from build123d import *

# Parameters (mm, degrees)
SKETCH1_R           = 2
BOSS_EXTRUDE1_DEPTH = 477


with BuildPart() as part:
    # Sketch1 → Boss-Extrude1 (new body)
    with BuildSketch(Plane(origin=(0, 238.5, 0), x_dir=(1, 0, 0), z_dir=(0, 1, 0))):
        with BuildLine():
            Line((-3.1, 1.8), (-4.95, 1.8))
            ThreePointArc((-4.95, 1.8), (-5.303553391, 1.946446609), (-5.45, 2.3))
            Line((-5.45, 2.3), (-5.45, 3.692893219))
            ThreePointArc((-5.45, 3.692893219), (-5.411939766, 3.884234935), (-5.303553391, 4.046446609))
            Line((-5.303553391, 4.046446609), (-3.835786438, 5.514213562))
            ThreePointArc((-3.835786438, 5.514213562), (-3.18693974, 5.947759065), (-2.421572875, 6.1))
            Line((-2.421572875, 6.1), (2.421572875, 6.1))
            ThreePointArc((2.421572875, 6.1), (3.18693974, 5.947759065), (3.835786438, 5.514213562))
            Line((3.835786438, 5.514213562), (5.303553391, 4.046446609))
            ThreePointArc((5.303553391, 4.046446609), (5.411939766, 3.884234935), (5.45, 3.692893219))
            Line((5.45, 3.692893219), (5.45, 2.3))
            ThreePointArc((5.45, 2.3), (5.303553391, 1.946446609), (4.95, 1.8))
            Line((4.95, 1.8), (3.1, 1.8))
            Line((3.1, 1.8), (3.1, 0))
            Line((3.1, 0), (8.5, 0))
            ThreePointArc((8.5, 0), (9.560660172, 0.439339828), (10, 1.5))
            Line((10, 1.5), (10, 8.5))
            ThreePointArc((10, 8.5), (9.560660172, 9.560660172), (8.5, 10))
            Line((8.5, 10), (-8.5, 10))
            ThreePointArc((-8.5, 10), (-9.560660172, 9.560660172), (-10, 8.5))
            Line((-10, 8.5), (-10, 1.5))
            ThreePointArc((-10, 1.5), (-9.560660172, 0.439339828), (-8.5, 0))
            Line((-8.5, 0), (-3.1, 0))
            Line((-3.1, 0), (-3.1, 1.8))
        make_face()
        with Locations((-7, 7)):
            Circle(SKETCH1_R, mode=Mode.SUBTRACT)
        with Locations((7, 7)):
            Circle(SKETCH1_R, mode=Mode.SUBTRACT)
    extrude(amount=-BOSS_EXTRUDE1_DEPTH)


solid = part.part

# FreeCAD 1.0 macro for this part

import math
import FreeCAD as App
import Part
import Sketcher
Q = App.Units.Quantity

doc = App.newDocument("Part")
body = doc.addObject("PartDesign::Body", "Body")

sketch1 = doc.addObject("Sketcher::SketchObject", "Sketch")
body.addObject(sketch1)
sketch1.AttachmentSupport = (doc.XZ_Plane, [""])
sketch1.MapMode = "FlatFace"
sketch1.AttachmentOffset = App.Placement(App.Vector(0, 0, -238.5), App.Rotation())
sketch1.addGeometry([
    Part.LineSegment(App.Vector(-3.1, -1.8, 0), App.Vector(-4.95, -1.8, 0)),
    Part.ArcOfCircle(Part.Circle(App.Vector(-4.95, -2.3, 0), App.Vector(0, 0, 1), 0.5), math.radians(90), math.radians(180)),
    Part.LineSegment(App.Vector(-5.45, -2.3, 0), App.Vector(-5.45, -3.692893, 0)),
    Part.ArcOfCircle(Part.Circle(App.Vector(-4.95, -3.692893, 0), App.Vector(0, 0, 1), 0.5), math.radians(-180), math.radians(-135)),
    Part.LineSegment(App.Vector(-5.303553, -4.046447, 0), App.Vector(-3.835786, -5.514214, 0)),
    Part.ArcOfCircle(Part.Circle(App.Vector(-2.421573, -4.1, 0), App.Vector(0, 0, 1), 2), math.radians(-135), math.radians(-90)),
    Part.LineSegment(App.Vector(-2.421573, -6.1, 0), App.Vector(2.421573, -6.1, 0)),
    Part.ArcOfCircle(Part.Circle(App.Vector(2.421573, -4.1, 0), App.Vector(0, 0, 1), 2), math.radians(-90), math.radians(-45)),
    Part.LineSegment(App.Vector(3.835786, -5.514214, 0), App.Vector(5.303553, -4.046447, 0)),
    Part.ArcOfCircle(Part.Circle(App.Vector(4.95, -3.692893, 0), App.Vector(0, 0, 1), 0.5), math.radians(-45), math.radians(0)),
    Part.LineSegment(App.Vector(5.45, -3.692893, 0), App.Vector(5.45, -2.3, 0)),
    Part.ArcOfCircle(Part.Circle(App.Vector(4.95, -2.3, 0), App.Vector(0, 0, 1), 0.5), math.radians(0), math.radians(90)),
    Part.LineSegment(App.Vector(4.95, -1.8, 0), App.Vector(3.1, -1.8, 0)),
    Part.LineSegment(App.Vector(3.1, -1.8, 0), App.Vector(3.1, 0, 0)),
    Part.LineSegment(App.Vector(3.1, 0, 0), App.Vector(8.5, 0, 0)),
    Part.ArcOfCircle(Part.Circle(App.Vector(8.5, -1.5, 0), App.Vector(0, 0, 1), 1.5), math.radians(0), math.radians(90)),
    Part.LineSegment(App.Vector(10, -1.5, 0), App.Vector(10, -8.5, 0)),
    Part.ArcOfCircle(Part.Circle(App.Vector(8.5, -8.5, 0), App.Vector(0, 0, 1), 1.5), math.radians(-90), math.radians(0)),
    Part.LineSegment(App.Vector(8.5, -10, 0), App.Vector(-8.5, -10, 0)),
    Part.ArcOfCircle(Part.Circle(App.Vector(-8.5, -8.5, 0), App.Vector(0, 0, 1), 1.5), math.radians(180), math.radians(270)),
    Part.LineSegment(App.Vector(-10, -8.5, 0), App.Vector(-10, -1.5, 0)),
    Part.ArcOfCircle(Part.Circle(App.Vector(-8.5, -1.5, 0), App.Vector(0, 0, 1), 1.5), math.radians(90), math.radians(180)),
    Part.LineSegment(App.Vector(-8.5, 0, 0), App.Vector(-3.1, 0, 0)),
    Part.LineSegment(App.Vector(-3.1, 0, 0), App.Vector(-3.1, -1.8, 0)),
    Part.Circle(App.Vector(-7, -7, 0), App.Vector(0, 0, 1), 2),
    Part.Circle(App.Vector(7, -7, 0), App.Vector(0, 0, 1), 2),
], False)
sketch1.addConstraint([
    Sketcher.Constraint("Tangent", 0, 2, 1, 1),
    Sketcher.Constraint("Tangent", 1, 2, 2, 1),
    Sketcher.Constraint("Tangent", 2, 2, 3, 1),
    Sketcher.Constraint("Tangent", 3, 2, 4, 1),
    Sketcher.Constraint("Tangent", 4, 2, 5, 1),
    Sketcher.Constraint("Tangent", 5, 2, 6, 1),
    Sketcher.Constraint("Tangent", 6, 2, 7, 1),
    Sketcher.Constraint("Tangent", 7, 2, 8, 1),
    Sketcher.Constraint("Tangent", 8, 2, 9, 1),
    Sketcher.Constraint("Tangent", 9, 2, 10, 1),
    Sketcher.Constraint("Tangent", 10, 2, 11, 1),
    Sketcher.Constraint("Tangent", 11, 2, 12, 1),
    Sketcher.Constraint("Coincident", 12, 2, 13, 1),
    Sketcher.Constraint("Coincident", 13, 2, 14, 1),
    Sketcher.Constraint("Tangent", 14, 2, 15, 2),
    Sketcher.Constraint("Tangent", 15, 1, 16, 1),
    Sketcher.Constraint("Tangent", 16, 2, 17, 2),
    Sketcher.Constraint("Tangent", 17, 1, 18, 1),
    Sketcher.Constraint("Tangent", 18, 2, 19, 2),
    Sketcher.Constraint("Tangent", 19, 1, 20, 1),
    Sketcher.Constraint("Tangent", 20, 2, 21, 2),
    Sketcher.Constraint("Tangent", 21, 1, 22, 1),
    Sketcher.Constraint("Coincident", 22, 2, 23, 1),
    Sketcher.Constraint("Coincident", 23, 2, 0, 1),
    Sketcher.Constraint("Horizontal", 0),
    Sketcher.Constraint("Vertical", 2),
    Sketcher.Constraint("Horizontal", 6),
    Sketcher.Constraint("Vertical", 10),
    Sketcher.Constraint("Horizontal", 12),
    Sketcher.Constraint("Vertical", 13),
    Sketcher.Constraint("Horizontal", 14),
    Sketcher.Constraint("Vertical", 16),
    Sketcher.Constraint("Horizontal", 18),
    Sketcher.Constraint("Vertical", 20),
    Sketcher.Constraint("Horizontal", 22),
    Sketcher.Constraint("Vertical", 23),
    Sketcher.Constraint("Equal", 1, 3),
    Sketcher.Constraint("Equal", 5, 7),
    Sketcher.Constraint("Equal", 3, 9),
    Sketcher.Constraint("Equal", 9, 11),
    Sketcher.Constraint("Equal", 15, 17),
    Sketcher.Constraint("Equal", 17, 19),
    Sketcher.Constraint("Equal", 19, 21),
    Sketcher.Constraint("Equal", 7, 24),
    Sketcher.Constraint("Equal", 24, 25),
    Sketcher.Constraint("Symmetric", 14, 2, 21, 1, -1, 1),
    Sketcher.Constraint("Symmetric", 3, 3, 9, 3, -2),
    Sketcher.Constraint("Symmetric", 24, 3, 25, 3, -2),
    Sketcher.Constraint("Symmetric", 13, 2, 22, 2, -2),
    Sketcher.Constraint("Perpendicular", 4, 8),
    Sketcher.Constraint("Horizontal", 1, 3, 11, 3),
    Sketcher.Constraint("Horizontal", 4, 2, 7, 2),
    Sketcher.Constraint("Diameter", 24, Q("4 mm")),
    Sketcher.Constraint("Radius", 1, Q("0.5 mm")),
    Sketcher.Constraint("Radius", 15, Q("1.5 mm")),
    Sketcher.Constraint("DistanceX", 18, 2, 18, 1, Q("17 mm")),
    Sketcher.Constraint("DistanceY", 16, 2, 16, 1, Q("7 mm")),
    Sketcher.Constraint("DistanceX", 14, 1, 14, 2, Q("5.4 mm")),
    Sketcher.Constraint("DistanceY", 13, 1, 13, 2, Q("1.8 mm")),
    Sketcher.Constraint("DistanceX", 24, 3, -1, 1, Q("7 mm")),
    Sketcher.Constraint("DistanceY", 24, 3, -1, 1, Q("7 mm")),
    Sketcher.Constraint("DistanceX", 0, 2, 0, 1, Q("1.85 mm")),
    Sketcher.Constraint("DistanceY", 5, 3, -1, 1, Q("4.1 mm")),
    Sketcher.Constraint("DistanceX", 6, 1, 6, 2, Q("4.843146 mm")),
])
pad1 = doc.addObject("PartDesign::Pad", "Pad")
body.addObject(pad1)
pad1.Profile = sketch1
pad1.Length = 477

doc.recompute()
